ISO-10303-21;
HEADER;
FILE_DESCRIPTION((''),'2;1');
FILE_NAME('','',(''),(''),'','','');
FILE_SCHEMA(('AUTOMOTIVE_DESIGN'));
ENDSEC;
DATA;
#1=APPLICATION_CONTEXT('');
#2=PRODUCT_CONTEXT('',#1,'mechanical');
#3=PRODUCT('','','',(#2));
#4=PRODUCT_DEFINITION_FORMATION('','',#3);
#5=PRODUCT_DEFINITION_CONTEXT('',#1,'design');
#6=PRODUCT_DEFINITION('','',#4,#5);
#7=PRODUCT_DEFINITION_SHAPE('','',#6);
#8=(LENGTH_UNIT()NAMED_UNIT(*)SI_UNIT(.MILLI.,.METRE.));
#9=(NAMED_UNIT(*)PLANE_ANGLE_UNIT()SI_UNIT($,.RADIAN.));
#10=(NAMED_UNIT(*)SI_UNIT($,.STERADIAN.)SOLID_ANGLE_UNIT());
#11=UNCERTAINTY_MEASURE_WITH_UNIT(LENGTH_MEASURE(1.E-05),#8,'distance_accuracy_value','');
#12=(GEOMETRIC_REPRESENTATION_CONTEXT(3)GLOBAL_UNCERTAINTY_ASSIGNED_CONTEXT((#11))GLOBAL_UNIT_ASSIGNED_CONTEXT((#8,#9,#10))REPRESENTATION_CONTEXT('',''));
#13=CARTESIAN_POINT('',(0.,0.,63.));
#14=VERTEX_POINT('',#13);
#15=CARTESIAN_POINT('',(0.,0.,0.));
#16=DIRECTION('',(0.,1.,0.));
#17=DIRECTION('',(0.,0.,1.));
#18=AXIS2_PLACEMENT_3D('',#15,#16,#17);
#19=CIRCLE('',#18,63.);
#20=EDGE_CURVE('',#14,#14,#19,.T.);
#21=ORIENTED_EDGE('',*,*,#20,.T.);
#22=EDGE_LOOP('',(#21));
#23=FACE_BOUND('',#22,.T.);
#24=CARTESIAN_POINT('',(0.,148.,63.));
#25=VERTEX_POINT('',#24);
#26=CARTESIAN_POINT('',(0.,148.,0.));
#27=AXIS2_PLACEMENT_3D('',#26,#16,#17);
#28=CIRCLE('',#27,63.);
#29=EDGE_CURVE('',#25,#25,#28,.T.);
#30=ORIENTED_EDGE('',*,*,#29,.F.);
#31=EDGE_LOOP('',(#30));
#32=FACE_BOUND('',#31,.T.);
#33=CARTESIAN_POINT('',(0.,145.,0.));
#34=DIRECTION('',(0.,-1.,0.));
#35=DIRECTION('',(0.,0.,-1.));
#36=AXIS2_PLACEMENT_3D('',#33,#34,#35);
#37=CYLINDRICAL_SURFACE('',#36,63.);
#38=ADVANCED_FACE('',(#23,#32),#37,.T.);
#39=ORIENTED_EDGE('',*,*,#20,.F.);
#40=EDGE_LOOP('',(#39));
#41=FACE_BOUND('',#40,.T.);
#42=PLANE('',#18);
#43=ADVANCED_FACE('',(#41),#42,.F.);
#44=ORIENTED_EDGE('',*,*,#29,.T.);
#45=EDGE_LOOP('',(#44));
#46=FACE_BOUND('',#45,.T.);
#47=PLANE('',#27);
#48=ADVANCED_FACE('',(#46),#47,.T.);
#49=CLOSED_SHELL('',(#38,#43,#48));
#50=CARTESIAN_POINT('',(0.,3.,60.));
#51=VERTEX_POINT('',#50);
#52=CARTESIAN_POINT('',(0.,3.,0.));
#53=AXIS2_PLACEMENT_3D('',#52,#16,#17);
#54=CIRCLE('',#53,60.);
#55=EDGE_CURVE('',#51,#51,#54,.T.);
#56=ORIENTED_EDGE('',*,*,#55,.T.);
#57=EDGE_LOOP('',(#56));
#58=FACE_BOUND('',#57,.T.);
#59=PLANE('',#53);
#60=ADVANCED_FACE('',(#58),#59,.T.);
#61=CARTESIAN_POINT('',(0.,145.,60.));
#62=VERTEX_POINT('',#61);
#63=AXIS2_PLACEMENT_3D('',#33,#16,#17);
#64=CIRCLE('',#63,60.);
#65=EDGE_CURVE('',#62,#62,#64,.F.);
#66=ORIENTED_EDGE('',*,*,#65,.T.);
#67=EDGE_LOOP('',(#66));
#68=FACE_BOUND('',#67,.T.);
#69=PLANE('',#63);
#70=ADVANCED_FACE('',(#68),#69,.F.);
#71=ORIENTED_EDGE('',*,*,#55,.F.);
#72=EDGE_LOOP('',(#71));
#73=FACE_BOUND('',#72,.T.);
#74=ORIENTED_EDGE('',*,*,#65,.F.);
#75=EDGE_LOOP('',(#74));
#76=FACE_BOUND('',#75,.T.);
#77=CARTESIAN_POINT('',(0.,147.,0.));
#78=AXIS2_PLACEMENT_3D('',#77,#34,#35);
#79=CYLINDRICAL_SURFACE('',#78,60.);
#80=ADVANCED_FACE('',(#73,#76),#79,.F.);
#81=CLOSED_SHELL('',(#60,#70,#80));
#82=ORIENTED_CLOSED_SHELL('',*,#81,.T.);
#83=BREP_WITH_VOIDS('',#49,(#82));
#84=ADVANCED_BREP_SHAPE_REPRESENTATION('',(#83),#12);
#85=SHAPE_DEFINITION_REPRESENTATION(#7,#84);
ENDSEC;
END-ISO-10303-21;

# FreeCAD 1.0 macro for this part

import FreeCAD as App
import Part
import Sketcher
from FreeCAD import Vector

doc = App.newDocument("Part")
body = doc.addObject("PartDesign::Body", "Body")

# Sketch on XZ plane
sketch1 = doc.addObject("Sketcher::SketchObject", "Sketch")
body.addObject(sketch1)
sketch1.AttachmentSupport = (doc.XZ_Plane, [""])
sketch1.MapMode = "FlatFace"
sketch1.addGeometry(Part.Circle(Vector(0, 0, 0), Vector(0, 0, 1), 63), False)
sketch1.addConstraint([
    Sketcher.Constraint("Coincident", 0, 3, -1, 1),
    Sketcher.Constraint("Diameter", 0, 126.0),
])
pad1 = doc.addObject("PartDesign::Pad", "Pad")
body.addObject(pad1)
pad1.Profile = sketch1
pad1.Length = 145
pad1.Reversed = True

# Sketch on XZ plane
sketch2 = doc.addObject("Sketcher::SketchObject", "Sketch001")
body.addObject(sketch2)
sketch2.AttachmentSupport = (doc.XZ_Plane, [""])
sketch2.MapMode = "FlatFace"
sketch2.AttachmentOffset = App.Placement(Vector(0, 0, -145), App.Rotation())
sketch2.addGeometry(Part.Circle(Vector(0, 0, 0), Vector(0, 0, 1), 60), False)
sketch2.addConstraint([
    Sketcher.Constraint("Coincident", 0, 3, -1, 1),
    Sketcher.Constraint("Diameter", 0, 120.0),
])
pocket1 = doc.addObject("PartDesign::Pocket", "Pocket")
body.addObject(pocket1)
pocket1.Profile = sketch2
pocket1.Type = "TwoLengths"
pocket1.Length = 2
pocket1.Length2 = 142

# Sketch on XZ plane
sketch3 = doc.addObject("Sketcher::SketchObject", "Sketch002")
body.addObject(sketch3)
sketch3.AttachmentSupport = (doc.XZ_Plane, [""])
sketch3.MapMode = "FlatFace"
sketch3.AttachmentOffset = App.Placement(Vector(0, 0, -145), App.Rotation())
sketch3.addGeometry(Part.Circle(Vector(0, 0, 0), Vector(0, 0, 1), 63), False)
sketch3.addConstraint([
    Sketcher.Constraint("Coincident", 0, 3, -1, 1),
    Sketcher.Constraint("Diameter", 0, 126.0),
])
pad2 = doc.addObject("PartDesign::Pad", "Pad001")
body.addObject(pad2)
pad2.Profile = sketch3
pad2.Length = 3
pad2.Reversed = True

doc.recompute()
